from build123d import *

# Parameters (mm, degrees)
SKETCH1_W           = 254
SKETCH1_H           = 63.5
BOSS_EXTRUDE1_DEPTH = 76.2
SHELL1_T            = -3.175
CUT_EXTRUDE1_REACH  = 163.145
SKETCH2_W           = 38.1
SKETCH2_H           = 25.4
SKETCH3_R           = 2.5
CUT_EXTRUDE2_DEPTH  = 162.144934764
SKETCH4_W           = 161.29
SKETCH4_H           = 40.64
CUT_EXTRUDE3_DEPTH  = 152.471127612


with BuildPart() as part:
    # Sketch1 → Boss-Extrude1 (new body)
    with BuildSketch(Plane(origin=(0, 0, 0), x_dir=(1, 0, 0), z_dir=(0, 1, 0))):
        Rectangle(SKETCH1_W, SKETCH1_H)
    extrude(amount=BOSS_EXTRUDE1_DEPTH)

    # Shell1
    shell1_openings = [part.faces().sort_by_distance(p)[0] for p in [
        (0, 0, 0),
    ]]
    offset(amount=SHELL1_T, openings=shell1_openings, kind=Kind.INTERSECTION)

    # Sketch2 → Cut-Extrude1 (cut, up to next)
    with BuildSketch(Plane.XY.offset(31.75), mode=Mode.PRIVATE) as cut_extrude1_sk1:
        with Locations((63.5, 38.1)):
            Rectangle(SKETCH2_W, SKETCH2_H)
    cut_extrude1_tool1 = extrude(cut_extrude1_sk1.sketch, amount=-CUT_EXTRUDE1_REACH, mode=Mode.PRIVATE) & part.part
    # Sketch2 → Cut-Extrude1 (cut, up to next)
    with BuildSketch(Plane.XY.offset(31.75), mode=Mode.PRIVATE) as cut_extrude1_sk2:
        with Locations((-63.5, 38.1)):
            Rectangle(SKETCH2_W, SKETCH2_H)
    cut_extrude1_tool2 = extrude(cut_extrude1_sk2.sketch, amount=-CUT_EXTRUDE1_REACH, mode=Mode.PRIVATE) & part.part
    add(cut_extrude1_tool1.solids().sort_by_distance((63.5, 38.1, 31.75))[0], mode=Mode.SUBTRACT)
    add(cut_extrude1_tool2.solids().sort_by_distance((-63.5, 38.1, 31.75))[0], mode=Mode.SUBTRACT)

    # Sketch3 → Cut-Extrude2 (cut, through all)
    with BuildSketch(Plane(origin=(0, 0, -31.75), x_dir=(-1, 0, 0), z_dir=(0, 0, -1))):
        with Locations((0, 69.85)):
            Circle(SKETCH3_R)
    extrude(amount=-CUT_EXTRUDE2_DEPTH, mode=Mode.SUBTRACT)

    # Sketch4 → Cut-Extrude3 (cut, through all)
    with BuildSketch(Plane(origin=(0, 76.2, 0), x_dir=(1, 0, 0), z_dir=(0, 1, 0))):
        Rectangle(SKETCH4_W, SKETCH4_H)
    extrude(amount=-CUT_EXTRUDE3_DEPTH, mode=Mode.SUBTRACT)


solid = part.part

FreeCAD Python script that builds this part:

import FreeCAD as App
import Part
import Sketcher

V = App.Vector
Q = App.Units.Quantity


def faces_at(feature, points):
    """Names of the faces that lie closest to the given points."""
    faces = feature.Shape.Faces
    near = lambda p: min(range(len(faces)), key=lambda i: faces[i].distToShape(Part.Vertex(*p))[0])
    return sorted({f"Face{near(p) + 1}" for p in points})

doc = App.newDocument("Part")
body = doc.addObject("PartDesign::Body", "Body")

# Sketch on XZ plane
sketch1 = doc.addObject("Sketcher::SketchObject", "Sketch")
body.addObject(sketch1)
sketch1.AttachmentSupport = (doc.XZ_Plane, [""])
sketch1.MapMode = "FlatFace"
sketch1.addGeometry(Part.LineSegment(V(-127, -31.75, 0), V(-127, 31.75, 0)), False)
sketch1.addGeometry(Part.LineSegment(V(-127, 31.75, 0), V(127, 31.75, 0)), False)
sketch1.addGeometry(Part.LineSegment(V(127, 31.75, 0), V(127, -31.75, 0)), False)
sketch1.addGeometry(Part.LineSegment(V(127, -31.75, 0), V(-127, -31.75, 0)), False)
sketch1.addConstraint(Sketcher.Constraint("Coincident", 0, 2, 1, 1))
sketch1.addConstraint(Sketcher.Constraint("Coincident", 1, 2, 2, 1))
sketch1.addConstraint(Sketcher.Constraint("Coincident", 2, 2, 3, 1))
sketch1.addConstraint(Sketcher.Constraint("Coincident", 3, 2, 0, 1))
sketch1.addConstraint(Sketcher.Constraint("Vertical", 0))
sketch1.addConstraint(Sketcher.Constraint("Horizontal", 1))
sketch1.addConstraint(Sketcher.Constraint("Vertical", 2))
sketch1.addConstraint(Sketcher.Constraint("Horizontal", 3))
sketch1.addConstraint(Sketcher.Constraint("Symmetric", 0, 2, 2, 2, -1, 1))
sketch1.addConstraint(Sketcher.Constraint("DistanceX", 1, 1, 1, 2, Q("10 in")))
sketch1.addConstraint(Sketcher.Constraint("DistanceY", 0, 1, 0, 2, Q("2.5 in")))
pad1 = doc.addObject("PartDesign::Pad", "Pad")
body.addObject(pad1)
pad1.Profile = sketch1
pad1.Length = Q("3 in")
pad1.Reversed = True
doc.recompute()

thickness = doc.addObject("PartDesign::Thickness", "Thickness")
body.addObject(thickness)
thickness.Base = (pad1, faces_at(pad1, [(0, 0, 0)]))
thickness.Value = Q("0.125 in")
thickness.Reversed = True
thickness.Join = "Intersection"

# Sketch on XY plane
sketch2 = doc.addObject("Sketcher::SketchObject", "Sketch001")
body.addObject(sketch2)
sketch2.AttachmentSupport = (doc.XY_Plane, [""])
sketch2.MapMode = "FlatFace"
sketch2.AttachmentOffset = App.Placement(V(0, 0, 1.25 * 25.4), App.Rotation())
sketch2.addGeometry(Part.LineSegment(V(44.45, 50.8, 0), V(44.45, 25.4, 0)), False)
sketch2.addGeometry(Part.LineSegment(V(44.45, 25.4, 0), V(82.55, 25.4, 0)), False)
sketch2.addGeometry(Part.LineSegment(V(82.55, 25.4, 0), V(82.55, 50.8, 0)), False)
sketch2.addGeometry(Part.LineSegment(V(82.55, 50.8, 0), V(44.45, 50.8, 0)), False)
sketch2.addConstraint(Sketcher.Constraint("Coincident", 0, 2, 1, 1))
sketch2.addConstraint(Sketcher.Constraint("Coincident", 1, 2, 2, 1))
sketch2.addConstraint(Sketcher.Constraint("Coincident", 2, 2, 3, 1))
sketch2.addConstraint(Sketcher.Constraint("Coincident", 3, 2, 0, 1))
sketch2.addConstraint(Sketcher.Constraint("Vertical", 0))
sketch2.addConstraint(Sketcher.Constraint("Horizontal", 1))
sketch2.addConstraint(Sketcher.Constraint("Vertical", 2))
sketch2.addConstraint(Sketcher.Constraint("Horizontal", 3))
sketch2.addConstraint(Sketcher.Constraint("DistanceY", 0, 2, 0, 1, Q("1 in")))
sketch2.addConstraint(Sketcher.Constraint("DistanceX", 1, 1, 1, 2, Q("1.5 in")))
sketch2.addConstraint(Sketcher.Constraint("DistanceY", -1, 1, 0, 2, Q("1 in")))
sketch2.addConstraint(Sketcher.Constraint("DistanceX", -1, 1, 0, 2, Q("1.75 in")))
pocket1 = doc.addObject("PartDesign::Pocket", "Pocket")
body.addObject(pocket1)
pocket1.Profile = sketch2
pocket1.Type = "UpToFirst"

# Sketch on XY plane
sketch3 = doc.addObject("Sketcher::SketchObject", "Sketch002")
body.addObject(sketch3)
sketch3.AttachmentSupport = (doc.XY_Plane, [""])
sketch3.MapMode = "FlatFace"
sketch3.AttachmentOffset = App.Placement(V(0, 0, 1.25 * 25.4), App.Rotation())
sketch3.addGeometry(Part.LineSegment(V(-82.55, 50.8, 0), V(-82.55, 25.4, 0)), False)
sketch3.addGeometry(Part.LineSegment(V(-82.55, 25.4, 0), V(-44.45, 25.4, 0)), False)
sketch3.addGeometry(Part.LineSegment(V(-44.45, 25.4, 0), V(-44.45, 50.8, 0)), False)
sketch3.addGeometry(Part.LineSegment(V(-44.45, 50.8, 0), V(-82.55, 50.8, 0)), False)
sketch3.addConstraint(Sketcher.Constraint("Coincident", 0, 2, 1, 1))
sketch3.addConstraint(Sketcher.Constraint("Coincident", 1, 2, 2, 1))
sketch3.addConstraint(Sketcher.Constraint("Coincident", 2, 2, 3, 1))
sketch3.addConstraint(Sketcher.Constraint("Coincident", 3, 2, 0, 1))
sketch3.addConstraint(Sketcher.Constraint("Vertical", 0))
sketch3.addConstraint(Sketcher.Constraint("Horizontal", 1))
sketch3.addConstraint(Sketcher.Constraint("Vertical", 2))
sketch3.addConstraint(Sketcher.Constraint("Horizontal", 3))
sketch3.addConstraint(Sketcher.Constraint("DistanceY", 0, 2, 0, 1, Q("1 in")))
sketch3.addConstraint(Sketcher.Constraint("DistanceX", 1, 1, 1, 2, Q("1.5 in")))
sketch3.addConstraint(Sketcher.Constraint("DistanceY", -1, 1, 0, 2, Q("1 in")))
sketch3.addConstraint(Sketcher.Constraint("DistanceX", 0, 2, -1, 1, Q("3.25 in")))
pocket2 = doc.addObject("PartDesign::Pocket", "Pocket001")
body.addObject(pocket2)
pocket2.Profile = sketch3
pocket2.Type = "UpToFirst"

# Sketch on XY plane
sketch4 = doc.addObject("Sketcher::SketchObject", "Sketch003")
body.addObject(sketch4)
sketch4.AttachmentSupport = (doc.XY_Plane, [""])
sketch4.MapMode = "FlatFace"
sketch4.AttachmentOffset = App.Placement(V(0, 0, -1.25 * 25.4), App.Rotation())
sketch4.addGeometry(Part.Circle(V(0, 69.85, 0), V(0, 0, 1), 2.5), False)
sketch4.addConstraint(Sketcher.Constraint("PointOnObject", 0, 3, -2))
sketch4.addConstraint(Sketcher.Constraint("Diameter", 0, 5.0))
sketch4.addConstraint(Sketcher.Constraint("DistanceY", -1, 1, 0, 3, Q("2.75 in")))
pocket3 = doc.addObject("PartDesign::Pocket", "Pocket002")
body.addObject(pocket3)
pocket3.Profile = sketch4
pocket3.Type = "ThroughAll"
pocket3.Reversed = True

# Sketch on XZ plane
sketch5 = doc.addObject("Sketcher::SketchObject", "Sketch004")
body.addObject(sketch5)
sketch5.AttachmentSupport = (doc.XZ_Plane, [""])
sketch5.MapMode = "FlatFace"
sketch5.AttachmentOffset = App.Placement(V(0, 0, -3 * 25.4), App.Rotation())
sketch5.addGeometry(Part.LineSegment(V(-80.645, -20.32, 0), V(-80.645, 20.32, 0)), False)
sketch5.addGeometry(Part.LineSegment(V(-80.645, 20.32, 0), V(80.645, 20.32, 0)), False)
sketch5.addGeometry(Part.LineSegment(V(80.645, 20.32, 0), V(80.645, -20.32, 0)), False)
sketch5.addGeometry(Part.LineSegment(V(80.645, -20.32, 0), V(-80.645, -20.32, 0)), False)
sketch5.addConstraint(Sketcher.Constraint("Coincident", 0, 2, 1, 1))
sketch5.addConstraint(Sketcher.Constraint("Coincident", 1, 2, 2, 1))
sketch5.addConstraint(Sketcher.Constraint("Coincident", 2, 2, 3, 1))
sketch5.addConstraint(Sketcher.Constraint("Coincident", 3, 2, 0, 1))
sketch5.addConstraint(Sketcher.Constraint("Vertical", 0))
sketch5.addConstraint(Sketcher.Constraint("Horizontal", 1))
sketch5.addConstraint(Sketcher.Constraint("Vertical", 2))
sketch5.addConstraint(Sketcher.Constraint("Horizontal", 3))
sketch5.addConstraint(Sketcher.Constraint("Symmetric", 0, 2, 2, 2, -1, 1))
sketch5.addConstraint(Sketcher.Constraint("DistanceY", 0, 1, 0, 2, Q("1.6 in")))
sketch5.addConstraint(Sketcher.Constraint("DistanceX", 1, 1, 1, 2, Q("6.35 in")))
pocket4 = doc.addObject("PartDesign::Pocket", "Pocket003")
body.addObject(pocket4)
pocket4.Profile = sketch5
pocket4.Type = "ThroughAll"
pocket4.Reversed = True

doc.recompute()
